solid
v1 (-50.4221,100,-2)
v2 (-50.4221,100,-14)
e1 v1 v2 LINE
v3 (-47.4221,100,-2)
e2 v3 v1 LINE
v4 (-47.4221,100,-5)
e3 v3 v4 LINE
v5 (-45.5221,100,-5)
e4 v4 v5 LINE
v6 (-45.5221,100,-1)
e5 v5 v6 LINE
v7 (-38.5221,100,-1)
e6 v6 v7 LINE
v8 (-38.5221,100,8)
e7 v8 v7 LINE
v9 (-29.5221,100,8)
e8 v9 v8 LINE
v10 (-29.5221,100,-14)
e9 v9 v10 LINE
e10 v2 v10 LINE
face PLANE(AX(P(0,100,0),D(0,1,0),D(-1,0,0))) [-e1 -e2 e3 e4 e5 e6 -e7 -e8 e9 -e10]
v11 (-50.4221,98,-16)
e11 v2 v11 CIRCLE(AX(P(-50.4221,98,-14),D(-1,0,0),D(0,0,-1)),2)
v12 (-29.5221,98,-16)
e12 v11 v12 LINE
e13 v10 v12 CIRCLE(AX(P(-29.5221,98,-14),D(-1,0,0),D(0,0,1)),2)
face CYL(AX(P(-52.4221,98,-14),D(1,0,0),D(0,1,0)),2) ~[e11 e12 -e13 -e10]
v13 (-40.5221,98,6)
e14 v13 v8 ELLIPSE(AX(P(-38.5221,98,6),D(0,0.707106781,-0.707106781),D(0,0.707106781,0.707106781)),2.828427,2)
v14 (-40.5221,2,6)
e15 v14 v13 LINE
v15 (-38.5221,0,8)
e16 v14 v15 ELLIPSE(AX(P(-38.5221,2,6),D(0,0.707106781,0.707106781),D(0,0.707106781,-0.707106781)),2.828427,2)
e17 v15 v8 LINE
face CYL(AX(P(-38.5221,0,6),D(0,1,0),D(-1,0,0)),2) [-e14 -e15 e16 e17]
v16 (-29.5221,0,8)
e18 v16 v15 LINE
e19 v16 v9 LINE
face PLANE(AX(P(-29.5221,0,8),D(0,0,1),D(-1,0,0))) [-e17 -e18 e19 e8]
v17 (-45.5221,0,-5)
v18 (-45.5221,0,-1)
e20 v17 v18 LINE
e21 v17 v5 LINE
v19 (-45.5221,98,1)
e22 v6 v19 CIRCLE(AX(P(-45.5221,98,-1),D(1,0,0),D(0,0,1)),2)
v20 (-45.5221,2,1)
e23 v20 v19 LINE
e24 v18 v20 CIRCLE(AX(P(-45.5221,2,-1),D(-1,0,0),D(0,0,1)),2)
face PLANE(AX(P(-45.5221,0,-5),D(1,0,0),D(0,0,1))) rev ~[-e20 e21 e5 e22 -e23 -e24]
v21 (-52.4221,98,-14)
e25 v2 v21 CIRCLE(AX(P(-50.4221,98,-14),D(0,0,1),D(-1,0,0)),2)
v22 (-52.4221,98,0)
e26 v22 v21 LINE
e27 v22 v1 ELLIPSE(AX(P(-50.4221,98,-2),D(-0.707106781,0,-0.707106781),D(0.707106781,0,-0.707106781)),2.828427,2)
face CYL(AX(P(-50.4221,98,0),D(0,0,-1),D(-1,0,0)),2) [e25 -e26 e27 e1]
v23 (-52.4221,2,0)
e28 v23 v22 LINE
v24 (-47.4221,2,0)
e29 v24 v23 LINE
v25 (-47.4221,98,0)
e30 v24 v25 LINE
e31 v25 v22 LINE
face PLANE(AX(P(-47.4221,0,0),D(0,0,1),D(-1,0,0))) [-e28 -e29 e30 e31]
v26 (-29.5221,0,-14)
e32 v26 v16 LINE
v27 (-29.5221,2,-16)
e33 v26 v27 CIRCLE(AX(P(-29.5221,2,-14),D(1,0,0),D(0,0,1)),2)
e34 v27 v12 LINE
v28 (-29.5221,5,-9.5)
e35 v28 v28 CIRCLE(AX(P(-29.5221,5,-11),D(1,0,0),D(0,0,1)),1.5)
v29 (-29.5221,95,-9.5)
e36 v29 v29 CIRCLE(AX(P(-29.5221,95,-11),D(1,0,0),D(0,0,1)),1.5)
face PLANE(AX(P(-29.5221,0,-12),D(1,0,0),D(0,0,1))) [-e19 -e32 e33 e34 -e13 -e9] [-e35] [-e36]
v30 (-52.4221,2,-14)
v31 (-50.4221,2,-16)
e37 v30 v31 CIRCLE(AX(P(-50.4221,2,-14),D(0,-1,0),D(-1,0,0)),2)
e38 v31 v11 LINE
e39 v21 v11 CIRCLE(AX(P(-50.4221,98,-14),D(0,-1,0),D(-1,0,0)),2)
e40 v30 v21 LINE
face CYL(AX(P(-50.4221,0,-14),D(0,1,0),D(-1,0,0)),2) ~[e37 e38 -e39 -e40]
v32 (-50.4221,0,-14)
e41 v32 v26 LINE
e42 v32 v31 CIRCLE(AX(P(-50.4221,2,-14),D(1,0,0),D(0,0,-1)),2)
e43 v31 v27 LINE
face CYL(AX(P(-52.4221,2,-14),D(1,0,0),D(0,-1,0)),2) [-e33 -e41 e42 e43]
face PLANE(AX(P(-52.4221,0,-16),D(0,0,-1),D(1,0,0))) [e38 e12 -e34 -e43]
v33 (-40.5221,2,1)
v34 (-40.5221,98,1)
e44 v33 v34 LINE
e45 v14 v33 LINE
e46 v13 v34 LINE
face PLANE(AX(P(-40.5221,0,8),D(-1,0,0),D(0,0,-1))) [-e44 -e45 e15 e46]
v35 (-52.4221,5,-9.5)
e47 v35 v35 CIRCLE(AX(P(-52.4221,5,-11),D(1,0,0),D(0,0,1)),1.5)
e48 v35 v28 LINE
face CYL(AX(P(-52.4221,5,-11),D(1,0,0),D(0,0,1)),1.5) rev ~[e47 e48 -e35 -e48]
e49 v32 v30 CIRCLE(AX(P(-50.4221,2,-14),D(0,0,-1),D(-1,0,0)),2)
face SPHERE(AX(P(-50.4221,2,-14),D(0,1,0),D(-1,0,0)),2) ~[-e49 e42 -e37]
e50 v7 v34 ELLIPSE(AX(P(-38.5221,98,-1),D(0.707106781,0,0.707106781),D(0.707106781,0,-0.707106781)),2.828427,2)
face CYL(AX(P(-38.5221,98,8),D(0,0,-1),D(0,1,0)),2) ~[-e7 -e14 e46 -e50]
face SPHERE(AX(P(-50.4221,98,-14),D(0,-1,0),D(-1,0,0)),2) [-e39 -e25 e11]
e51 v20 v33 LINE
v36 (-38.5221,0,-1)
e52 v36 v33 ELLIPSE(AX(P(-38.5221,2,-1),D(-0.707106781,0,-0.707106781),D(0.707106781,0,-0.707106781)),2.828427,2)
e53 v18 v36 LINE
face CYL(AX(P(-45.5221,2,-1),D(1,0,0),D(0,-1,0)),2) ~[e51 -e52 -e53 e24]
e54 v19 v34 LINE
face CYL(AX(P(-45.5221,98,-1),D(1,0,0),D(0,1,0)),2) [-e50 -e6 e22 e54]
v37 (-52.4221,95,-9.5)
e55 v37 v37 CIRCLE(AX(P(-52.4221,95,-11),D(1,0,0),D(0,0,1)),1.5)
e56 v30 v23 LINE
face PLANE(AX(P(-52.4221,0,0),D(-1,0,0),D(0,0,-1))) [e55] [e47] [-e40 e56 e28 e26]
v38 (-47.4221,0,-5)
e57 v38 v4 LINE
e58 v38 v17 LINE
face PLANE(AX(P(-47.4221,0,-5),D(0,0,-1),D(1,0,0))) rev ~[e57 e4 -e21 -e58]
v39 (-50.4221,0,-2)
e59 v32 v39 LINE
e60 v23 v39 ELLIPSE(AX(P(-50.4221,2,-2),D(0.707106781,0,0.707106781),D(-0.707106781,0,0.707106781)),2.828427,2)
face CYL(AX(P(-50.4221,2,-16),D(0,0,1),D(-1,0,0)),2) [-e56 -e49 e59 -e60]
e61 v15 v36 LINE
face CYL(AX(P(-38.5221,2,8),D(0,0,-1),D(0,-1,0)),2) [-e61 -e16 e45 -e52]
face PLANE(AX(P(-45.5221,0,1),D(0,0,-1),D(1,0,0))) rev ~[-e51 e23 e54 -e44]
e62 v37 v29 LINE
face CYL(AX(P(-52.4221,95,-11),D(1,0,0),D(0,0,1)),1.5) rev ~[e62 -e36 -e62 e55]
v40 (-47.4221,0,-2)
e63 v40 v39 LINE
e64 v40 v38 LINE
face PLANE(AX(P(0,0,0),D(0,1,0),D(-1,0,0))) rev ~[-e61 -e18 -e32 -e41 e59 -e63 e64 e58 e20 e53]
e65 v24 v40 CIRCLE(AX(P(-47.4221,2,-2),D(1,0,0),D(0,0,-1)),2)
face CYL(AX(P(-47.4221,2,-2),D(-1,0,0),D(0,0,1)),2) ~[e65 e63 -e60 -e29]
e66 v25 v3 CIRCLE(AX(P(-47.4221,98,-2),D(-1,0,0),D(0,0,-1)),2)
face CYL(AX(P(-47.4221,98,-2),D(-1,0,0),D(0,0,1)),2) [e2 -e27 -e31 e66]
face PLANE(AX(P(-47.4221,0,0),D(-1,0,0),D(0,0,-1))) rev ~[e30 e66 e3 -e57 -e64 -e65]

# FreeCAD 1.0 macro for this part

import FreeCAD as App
import Part
import Sketcher
from FreeCAD import Vector


def edges_at(feature, points):
    """Names of the edges that pass closest to the given points."""
    edges = feature.Shape.Edges
    near = lambda p: min(range(len(edges)), key=lambda i: edges[i].distToShape(Part.Vertex(*p))[0])
    return sorted({f"Edge{near(p) + 1}" for p in points})


def add_polygon(sketch, points):
    """Adds a closed chain of lines whose ends are joined by coincident constraints."""
    first, n = sketch.GeometryCount, len(points)
    for a, b in zip(points, points[1:] + points[:1]):
        sketch.addGeometry(Part.LineSegment(App.Vector(*a, 0), App.Vector(*b, 0)), False)
    for i in range(n):
        sketch.addConstraint(Sketcher.Constraint("Coincident", first + i, 2, first + (i + 1) % n, 1))

doc = App.newDocument("Part")
body = doc.addObject("PartDesign::Body", "Body")

# Sketch on XZ plane
sketch1 = body.newObject("Sketcher::SketchObject", "Sketch")
sketch1.AttachmentSupport = (doc.getObject("XZ_Plane"), [""])
sketch1.MapMode = "FlatFace"
add_polygon(sketch1, [(-52.4, 0), (-47.4, 0), (-47.4, -5), (-45.5, -5), (-45.5, 1), (-40.5, 1), (-40.5, 8), (-29.5, 8), (-29.5, -16), (-52.4, -16)])  # lines 0-9
sketch1.addConstraint([
    Sketcher.Constraint("Horizontal", 0),
    Sketcher.Constraint("Vertical", 1),
    Sketcher.Constraint("Horizontal", 2),
    Sketcher.Constraint("Vertical", 3),
    Sketcher.Constraint("Horizontal", 4),
    Sketcher.Constraint("Vertical", 5),
    Sketcher.Constraint("Horizontal", 6),
    Sketcher.Constraint("Vertical", 7),
    Sketcher.Constraint("Horizontal", 8),
    Sketcher.Constraint("Vertical", 9),
    Sketcher.Constraint("PointOnObject", 0, 2, -1),
    Sketcher.Constraint("Equal", 0, 4),
    Sketcher.Constraint("Equal", 4, 1),
    Sketcher.Constraint("DistanceX", 0, 1, 0, 2, 5.0),
    Sketcher.Constraint("DistanceX", 6, 1, 6, 2, 11.0),
    Sketcher.Constraint("DistanceY", 3, 1, 3, 2, 6.0),
    Sketcher.Constraint("DistanceY", 5, 1, 5, 2, 7.0),
    Sketcher.Constraint("DistanceX", 2, 1, 2, 2, 1.9),
    Sketcher.Constraint("DistanceY", 7, 2, 2, 2, 11.0),
    Sketcher.Constraint("DistanceX", 0, 2, -1, 1, 47.422),
])
pad1 = body.newObject("PartDesign::Pad", "Pad")
pad1.Profile = sketch1
pad1.Length = 100
pad1.Reversed = True

# Sketch on YZ plane
sketch2 = body.newObject("Sketcher::SketchObject", "Sketch001")
sketch2.AttachmentSupport = (doc.getObject("YZ_Plane"), [""])
sketch2.MapMode = "FlatFace"
sketch2.AttachmentOffset = App.Placement(Vector(0, 0, -52.4221), App.Rotation())
sketch2.addGeometry([
    Part.Circle(Vector(5, -11, 0), Vector(0, 0, 1), 1.5),
    Part.Circle(Vector(95, -11, 0), Vector(0, 0, 1), 1.5),
], False)
sketch2.addConstraint([
    Sketcher.Constraint("Equal", 0, 1),
    Sketcher.Constraint("Horizontal", 0, 3, 1, 3),
    Sketcher.Constraint("Diameter", 0, 3.0),
    Sketcher.Constraint("DistanceX", -1, 1, 0, 3, 5.0),
    Sketcher.Constraint("DistanceY", 0, 3, -1, 1, 11.0),
    Sketcher.Constraint("DistanceX", -1, 1, 1, 3, 95.0),
])
doc.recompute()
hole = body.newObject("PartDesign::Hole", "Hole")
hole.Profile = sketch2
hole.ThreadType = "None"
hole.Diameter = 3
hole.DepthType = "ThroughAll"
hole.Reversed = True
doc.recompute()

fillet = body.newObject("PartDesign::Fillet", "Fillet")
fillet.Base = (hole, edges_at(hole, [
    (-52.422, 50, -16),
    (-52.422, 0, -8),
    (-52.422, 100, -8),
    (-40.972, 100, -16),
    (-40.972, 0, -16),
    (-40.522, 50, 8),
    (-40.522, 0, 4.5),
    (-43.022, 0, 1),
    (-49.922, 0, 0),
    (-49.922, 100, 0),
    (-43.022, 100, 1),
    (-40.522, 100, 4.5),
]))
fillet.Radius = 2

doc.recompute()
